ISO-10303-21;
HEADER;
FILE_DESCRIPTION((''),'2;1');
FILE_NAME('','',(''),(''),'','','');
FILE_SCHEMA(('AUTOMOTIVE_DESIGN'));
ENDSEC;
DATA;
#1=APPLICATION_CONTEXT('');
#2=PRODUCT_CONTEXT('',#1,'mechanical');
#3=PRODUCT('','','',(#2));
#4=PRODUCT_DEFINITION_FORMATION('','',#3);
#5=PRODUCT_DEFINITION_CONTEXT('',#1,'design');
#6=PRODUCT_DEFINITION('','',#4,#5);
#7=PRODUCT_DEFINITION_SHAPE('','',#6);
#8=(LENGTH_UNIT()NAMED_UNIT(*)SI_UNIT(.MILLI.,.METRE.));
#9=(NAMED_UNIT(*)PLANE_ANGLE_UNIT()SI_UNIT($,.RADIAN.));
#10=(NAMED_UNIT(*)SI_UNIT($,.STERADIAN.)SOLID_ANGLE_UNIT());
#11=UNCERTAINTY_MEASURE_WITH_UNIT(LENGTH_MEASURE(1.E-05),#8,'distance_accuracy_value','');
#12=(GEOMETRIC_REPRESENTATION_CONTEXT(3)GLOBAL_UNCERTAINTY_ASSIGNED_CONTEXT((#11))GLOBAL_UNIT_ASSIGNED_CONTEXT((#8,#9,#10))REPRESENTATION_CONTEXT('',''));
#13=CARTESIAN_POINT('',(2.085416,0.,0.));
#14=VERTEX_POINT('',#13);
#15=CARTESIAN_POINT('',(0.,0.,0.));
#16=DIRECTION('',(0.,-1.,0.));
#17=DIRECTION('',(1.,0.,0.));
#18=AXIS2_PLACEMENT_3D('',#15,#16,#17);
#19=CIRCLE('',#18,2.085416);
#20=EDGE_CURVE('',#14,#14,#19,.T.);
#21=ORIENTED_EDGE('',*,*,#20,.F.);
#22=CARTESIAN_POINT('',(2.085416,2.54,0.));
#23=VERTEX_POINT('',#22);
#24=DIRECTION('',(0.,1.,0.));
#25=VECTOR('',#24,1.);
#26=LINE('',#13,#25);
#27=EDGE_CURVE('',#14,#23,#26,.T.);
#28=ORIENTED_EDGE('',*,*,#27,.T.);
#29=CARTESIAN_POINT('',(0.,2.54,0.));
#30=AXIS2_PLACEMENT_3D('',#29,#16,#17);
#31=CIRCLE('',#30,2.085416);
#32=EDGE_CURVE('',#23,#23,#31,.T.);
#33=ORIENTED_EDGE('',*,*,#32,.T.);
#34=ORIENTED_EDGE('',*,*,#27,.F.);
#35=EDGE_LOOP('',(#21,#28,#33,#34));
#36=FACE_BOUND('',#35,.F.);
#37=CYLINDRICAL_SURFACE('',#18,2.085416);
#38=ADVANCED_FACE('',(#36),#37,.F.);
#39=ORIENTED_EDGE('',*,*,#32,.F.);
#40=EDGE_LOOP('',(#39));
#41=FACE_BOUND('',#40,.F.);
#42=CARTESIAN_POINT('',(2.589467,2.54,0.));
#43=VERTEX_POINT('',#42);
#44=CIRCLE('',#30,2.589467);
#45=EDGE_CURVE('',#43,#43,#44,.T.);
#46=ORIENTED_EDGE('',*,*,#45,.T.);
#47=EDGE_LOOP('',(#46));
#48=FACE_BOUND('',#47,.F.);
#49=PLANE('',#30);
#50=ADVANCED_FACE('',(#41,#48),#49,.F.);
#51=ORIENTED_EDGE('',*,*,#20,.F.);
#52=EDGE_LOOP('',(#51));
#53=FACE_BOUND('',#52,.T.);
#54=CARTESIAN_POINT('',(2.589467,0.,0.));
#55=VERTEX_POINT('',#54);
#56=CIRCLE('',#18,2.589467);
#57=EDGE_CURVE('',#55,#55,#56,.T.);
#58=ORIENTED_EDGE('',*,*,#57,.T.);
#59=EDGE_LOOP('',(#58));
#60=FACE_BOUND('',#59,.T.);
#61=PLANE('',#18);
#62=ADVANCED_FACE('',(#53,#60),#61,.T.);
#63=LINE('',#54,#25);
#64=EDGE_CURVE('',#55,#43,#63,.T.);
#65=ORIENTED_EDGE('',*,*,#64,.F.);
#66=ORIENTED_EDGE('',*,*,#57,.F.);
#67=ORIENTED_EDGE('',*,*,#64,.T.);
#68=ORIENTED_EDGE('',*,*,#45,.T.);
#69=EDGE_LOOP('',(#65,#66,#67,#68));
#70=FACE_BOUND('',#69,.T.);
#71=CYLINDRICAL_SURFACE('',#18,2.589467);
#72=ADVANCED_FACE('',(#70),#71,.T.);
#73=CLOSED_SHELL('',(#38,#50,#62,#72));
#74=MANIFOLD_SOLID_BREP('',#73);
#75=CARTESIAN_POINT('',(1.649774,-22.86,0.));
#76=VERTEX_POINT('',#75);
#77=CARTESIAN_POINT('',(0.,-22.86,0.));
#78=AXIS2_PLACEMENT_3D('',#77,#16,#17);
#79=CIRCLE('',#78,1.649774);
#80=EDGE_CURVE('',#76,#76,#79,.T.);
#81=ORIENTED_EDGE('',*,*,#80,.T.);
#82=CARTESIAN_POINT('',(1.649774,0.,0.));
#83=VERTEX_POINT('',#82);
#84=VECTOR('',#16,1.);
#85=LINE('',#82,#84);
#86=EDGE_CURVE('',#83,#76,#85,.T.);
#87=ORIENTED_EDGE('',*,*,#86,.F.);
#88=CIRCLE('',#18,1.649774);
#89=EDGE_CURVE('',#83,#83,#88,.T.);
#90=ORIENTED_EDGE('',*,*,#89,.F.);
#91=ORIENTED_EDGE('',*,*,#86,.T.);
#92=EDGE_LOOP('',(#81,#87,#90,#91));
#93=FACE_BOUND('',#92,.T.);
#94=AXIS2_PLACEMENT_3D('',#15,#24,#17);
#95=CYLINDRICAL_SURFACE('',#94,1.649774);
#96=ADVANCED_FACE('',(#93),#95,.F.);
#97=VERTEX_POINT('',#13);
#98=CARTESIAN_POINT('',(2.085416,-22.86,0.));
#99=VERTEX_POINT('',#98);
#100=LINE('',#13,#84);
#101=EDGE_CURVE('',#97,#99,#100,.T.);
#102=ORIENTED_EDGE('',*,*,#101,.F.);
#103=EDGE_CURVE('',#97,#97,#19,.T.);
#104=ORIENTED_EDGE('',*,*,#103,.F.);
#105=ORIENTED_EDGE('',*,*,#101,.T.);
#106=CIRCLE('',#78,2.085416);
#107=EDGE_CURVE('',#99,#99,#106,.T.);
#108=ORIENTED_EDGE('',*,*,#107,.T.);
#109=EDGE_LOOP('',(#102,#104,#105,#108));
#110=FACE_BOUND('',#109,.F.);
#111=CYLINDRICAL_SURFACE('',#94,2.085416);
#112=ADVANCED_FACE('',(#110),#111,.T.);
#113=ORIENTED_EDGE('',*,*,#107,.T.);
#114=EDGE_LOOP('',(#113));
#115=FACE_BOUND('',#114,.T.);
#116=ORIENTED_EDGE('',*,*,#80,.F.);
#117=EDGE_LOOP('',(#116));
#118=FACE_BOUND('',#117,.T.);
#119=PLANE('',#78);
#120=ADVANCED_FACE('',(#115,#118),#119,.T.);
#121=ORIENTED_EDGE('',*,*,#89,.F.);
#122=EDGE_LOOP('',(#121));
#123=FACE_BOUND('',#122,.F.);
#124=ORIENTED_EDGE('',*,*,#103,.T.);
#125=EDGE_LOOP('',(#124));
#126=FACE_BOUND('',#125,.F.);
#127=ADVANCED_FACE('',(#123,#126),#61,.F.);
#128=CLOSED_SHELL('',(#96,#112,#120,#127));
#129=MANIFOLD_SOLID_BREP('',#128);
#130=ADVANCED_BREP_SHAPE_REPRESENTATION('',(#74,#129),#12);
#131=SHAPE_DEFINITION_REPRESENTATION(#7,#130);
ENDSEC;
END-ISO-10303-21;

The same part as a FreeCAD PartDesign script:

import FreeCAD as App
import Part
import Sketcher

V = App.Vector
Q = App.Units.Quantity

doc = App.newDocument("Part")
body = doc.addObject("PartDesign::Body", "Body")

# Sketch on XZ plane
sketch1 = body.newObject("Sketcher::SketchObject", "Sketch")
sketch1.AttachmentSupport = (doc.getObject("XZ_Plane"), [""])
sketch1.MapMode = "FlatFace"
sketch1.addGeometry([
    Part.Circle(V(0, 0, 0), V(0, 0, 1), 2.1),
    Part.Circle(V(0, 0, 0), V(0, 0, 1), 1.6),
], False)
sketch1.addConstraint([
    Sketcher.Constraint("Coincident", 0, 3, -1, 1),
    Sketcher.Constraint("Coincident", 1, 3, -1, 1),
    Sketcher.Constraint("Diameter", 1, 3.299548),
    Sketcher.Constraint("Diameter", 0, 4.170832),
])
pad1 = body.newObject("PartDesign::Pad", "Pad")
pad1.Profile = sketch1
pad1.Length = Q("0.9 in")
body2 = doc.addObject("PartDesign::Body", "Body001")

# Sketch on XZ plane
sketch2 = body2.newObject("Sketcher::SketchObject", "Sketch001")
sketch2.AttachmentSupport = (doc.getObject("XZ_Plane001"), [""])
sketch2.MapMode = "FlatFace"
sketch2.addGeometry([
    Part.Circle(V(0, 0, 0), V(0, 0, 1), 2.6),
    Part.Circle(V(0, 0, 0), V(0, 0, 1), 2.1),
], False)
sketch2.addConstraint([
    Sketcher.Constraint("Coincident", 0, 3, -1, 1),
    Sketcher.Constraint("Coincident", 1, 3, -1, 1),
    Sketcher.Constraint("Diameter", 0, 5.178934),
    Sketcher.Constraint("Diameter", 1, 4.170832),
])
pad2 = body2.newObject("PartDesign::Pad", "Pad001")
pad2.Profile = sketch2
pad2.Length = Q("0.1 in")
pad2.Reversed = True

doc.recompute()
